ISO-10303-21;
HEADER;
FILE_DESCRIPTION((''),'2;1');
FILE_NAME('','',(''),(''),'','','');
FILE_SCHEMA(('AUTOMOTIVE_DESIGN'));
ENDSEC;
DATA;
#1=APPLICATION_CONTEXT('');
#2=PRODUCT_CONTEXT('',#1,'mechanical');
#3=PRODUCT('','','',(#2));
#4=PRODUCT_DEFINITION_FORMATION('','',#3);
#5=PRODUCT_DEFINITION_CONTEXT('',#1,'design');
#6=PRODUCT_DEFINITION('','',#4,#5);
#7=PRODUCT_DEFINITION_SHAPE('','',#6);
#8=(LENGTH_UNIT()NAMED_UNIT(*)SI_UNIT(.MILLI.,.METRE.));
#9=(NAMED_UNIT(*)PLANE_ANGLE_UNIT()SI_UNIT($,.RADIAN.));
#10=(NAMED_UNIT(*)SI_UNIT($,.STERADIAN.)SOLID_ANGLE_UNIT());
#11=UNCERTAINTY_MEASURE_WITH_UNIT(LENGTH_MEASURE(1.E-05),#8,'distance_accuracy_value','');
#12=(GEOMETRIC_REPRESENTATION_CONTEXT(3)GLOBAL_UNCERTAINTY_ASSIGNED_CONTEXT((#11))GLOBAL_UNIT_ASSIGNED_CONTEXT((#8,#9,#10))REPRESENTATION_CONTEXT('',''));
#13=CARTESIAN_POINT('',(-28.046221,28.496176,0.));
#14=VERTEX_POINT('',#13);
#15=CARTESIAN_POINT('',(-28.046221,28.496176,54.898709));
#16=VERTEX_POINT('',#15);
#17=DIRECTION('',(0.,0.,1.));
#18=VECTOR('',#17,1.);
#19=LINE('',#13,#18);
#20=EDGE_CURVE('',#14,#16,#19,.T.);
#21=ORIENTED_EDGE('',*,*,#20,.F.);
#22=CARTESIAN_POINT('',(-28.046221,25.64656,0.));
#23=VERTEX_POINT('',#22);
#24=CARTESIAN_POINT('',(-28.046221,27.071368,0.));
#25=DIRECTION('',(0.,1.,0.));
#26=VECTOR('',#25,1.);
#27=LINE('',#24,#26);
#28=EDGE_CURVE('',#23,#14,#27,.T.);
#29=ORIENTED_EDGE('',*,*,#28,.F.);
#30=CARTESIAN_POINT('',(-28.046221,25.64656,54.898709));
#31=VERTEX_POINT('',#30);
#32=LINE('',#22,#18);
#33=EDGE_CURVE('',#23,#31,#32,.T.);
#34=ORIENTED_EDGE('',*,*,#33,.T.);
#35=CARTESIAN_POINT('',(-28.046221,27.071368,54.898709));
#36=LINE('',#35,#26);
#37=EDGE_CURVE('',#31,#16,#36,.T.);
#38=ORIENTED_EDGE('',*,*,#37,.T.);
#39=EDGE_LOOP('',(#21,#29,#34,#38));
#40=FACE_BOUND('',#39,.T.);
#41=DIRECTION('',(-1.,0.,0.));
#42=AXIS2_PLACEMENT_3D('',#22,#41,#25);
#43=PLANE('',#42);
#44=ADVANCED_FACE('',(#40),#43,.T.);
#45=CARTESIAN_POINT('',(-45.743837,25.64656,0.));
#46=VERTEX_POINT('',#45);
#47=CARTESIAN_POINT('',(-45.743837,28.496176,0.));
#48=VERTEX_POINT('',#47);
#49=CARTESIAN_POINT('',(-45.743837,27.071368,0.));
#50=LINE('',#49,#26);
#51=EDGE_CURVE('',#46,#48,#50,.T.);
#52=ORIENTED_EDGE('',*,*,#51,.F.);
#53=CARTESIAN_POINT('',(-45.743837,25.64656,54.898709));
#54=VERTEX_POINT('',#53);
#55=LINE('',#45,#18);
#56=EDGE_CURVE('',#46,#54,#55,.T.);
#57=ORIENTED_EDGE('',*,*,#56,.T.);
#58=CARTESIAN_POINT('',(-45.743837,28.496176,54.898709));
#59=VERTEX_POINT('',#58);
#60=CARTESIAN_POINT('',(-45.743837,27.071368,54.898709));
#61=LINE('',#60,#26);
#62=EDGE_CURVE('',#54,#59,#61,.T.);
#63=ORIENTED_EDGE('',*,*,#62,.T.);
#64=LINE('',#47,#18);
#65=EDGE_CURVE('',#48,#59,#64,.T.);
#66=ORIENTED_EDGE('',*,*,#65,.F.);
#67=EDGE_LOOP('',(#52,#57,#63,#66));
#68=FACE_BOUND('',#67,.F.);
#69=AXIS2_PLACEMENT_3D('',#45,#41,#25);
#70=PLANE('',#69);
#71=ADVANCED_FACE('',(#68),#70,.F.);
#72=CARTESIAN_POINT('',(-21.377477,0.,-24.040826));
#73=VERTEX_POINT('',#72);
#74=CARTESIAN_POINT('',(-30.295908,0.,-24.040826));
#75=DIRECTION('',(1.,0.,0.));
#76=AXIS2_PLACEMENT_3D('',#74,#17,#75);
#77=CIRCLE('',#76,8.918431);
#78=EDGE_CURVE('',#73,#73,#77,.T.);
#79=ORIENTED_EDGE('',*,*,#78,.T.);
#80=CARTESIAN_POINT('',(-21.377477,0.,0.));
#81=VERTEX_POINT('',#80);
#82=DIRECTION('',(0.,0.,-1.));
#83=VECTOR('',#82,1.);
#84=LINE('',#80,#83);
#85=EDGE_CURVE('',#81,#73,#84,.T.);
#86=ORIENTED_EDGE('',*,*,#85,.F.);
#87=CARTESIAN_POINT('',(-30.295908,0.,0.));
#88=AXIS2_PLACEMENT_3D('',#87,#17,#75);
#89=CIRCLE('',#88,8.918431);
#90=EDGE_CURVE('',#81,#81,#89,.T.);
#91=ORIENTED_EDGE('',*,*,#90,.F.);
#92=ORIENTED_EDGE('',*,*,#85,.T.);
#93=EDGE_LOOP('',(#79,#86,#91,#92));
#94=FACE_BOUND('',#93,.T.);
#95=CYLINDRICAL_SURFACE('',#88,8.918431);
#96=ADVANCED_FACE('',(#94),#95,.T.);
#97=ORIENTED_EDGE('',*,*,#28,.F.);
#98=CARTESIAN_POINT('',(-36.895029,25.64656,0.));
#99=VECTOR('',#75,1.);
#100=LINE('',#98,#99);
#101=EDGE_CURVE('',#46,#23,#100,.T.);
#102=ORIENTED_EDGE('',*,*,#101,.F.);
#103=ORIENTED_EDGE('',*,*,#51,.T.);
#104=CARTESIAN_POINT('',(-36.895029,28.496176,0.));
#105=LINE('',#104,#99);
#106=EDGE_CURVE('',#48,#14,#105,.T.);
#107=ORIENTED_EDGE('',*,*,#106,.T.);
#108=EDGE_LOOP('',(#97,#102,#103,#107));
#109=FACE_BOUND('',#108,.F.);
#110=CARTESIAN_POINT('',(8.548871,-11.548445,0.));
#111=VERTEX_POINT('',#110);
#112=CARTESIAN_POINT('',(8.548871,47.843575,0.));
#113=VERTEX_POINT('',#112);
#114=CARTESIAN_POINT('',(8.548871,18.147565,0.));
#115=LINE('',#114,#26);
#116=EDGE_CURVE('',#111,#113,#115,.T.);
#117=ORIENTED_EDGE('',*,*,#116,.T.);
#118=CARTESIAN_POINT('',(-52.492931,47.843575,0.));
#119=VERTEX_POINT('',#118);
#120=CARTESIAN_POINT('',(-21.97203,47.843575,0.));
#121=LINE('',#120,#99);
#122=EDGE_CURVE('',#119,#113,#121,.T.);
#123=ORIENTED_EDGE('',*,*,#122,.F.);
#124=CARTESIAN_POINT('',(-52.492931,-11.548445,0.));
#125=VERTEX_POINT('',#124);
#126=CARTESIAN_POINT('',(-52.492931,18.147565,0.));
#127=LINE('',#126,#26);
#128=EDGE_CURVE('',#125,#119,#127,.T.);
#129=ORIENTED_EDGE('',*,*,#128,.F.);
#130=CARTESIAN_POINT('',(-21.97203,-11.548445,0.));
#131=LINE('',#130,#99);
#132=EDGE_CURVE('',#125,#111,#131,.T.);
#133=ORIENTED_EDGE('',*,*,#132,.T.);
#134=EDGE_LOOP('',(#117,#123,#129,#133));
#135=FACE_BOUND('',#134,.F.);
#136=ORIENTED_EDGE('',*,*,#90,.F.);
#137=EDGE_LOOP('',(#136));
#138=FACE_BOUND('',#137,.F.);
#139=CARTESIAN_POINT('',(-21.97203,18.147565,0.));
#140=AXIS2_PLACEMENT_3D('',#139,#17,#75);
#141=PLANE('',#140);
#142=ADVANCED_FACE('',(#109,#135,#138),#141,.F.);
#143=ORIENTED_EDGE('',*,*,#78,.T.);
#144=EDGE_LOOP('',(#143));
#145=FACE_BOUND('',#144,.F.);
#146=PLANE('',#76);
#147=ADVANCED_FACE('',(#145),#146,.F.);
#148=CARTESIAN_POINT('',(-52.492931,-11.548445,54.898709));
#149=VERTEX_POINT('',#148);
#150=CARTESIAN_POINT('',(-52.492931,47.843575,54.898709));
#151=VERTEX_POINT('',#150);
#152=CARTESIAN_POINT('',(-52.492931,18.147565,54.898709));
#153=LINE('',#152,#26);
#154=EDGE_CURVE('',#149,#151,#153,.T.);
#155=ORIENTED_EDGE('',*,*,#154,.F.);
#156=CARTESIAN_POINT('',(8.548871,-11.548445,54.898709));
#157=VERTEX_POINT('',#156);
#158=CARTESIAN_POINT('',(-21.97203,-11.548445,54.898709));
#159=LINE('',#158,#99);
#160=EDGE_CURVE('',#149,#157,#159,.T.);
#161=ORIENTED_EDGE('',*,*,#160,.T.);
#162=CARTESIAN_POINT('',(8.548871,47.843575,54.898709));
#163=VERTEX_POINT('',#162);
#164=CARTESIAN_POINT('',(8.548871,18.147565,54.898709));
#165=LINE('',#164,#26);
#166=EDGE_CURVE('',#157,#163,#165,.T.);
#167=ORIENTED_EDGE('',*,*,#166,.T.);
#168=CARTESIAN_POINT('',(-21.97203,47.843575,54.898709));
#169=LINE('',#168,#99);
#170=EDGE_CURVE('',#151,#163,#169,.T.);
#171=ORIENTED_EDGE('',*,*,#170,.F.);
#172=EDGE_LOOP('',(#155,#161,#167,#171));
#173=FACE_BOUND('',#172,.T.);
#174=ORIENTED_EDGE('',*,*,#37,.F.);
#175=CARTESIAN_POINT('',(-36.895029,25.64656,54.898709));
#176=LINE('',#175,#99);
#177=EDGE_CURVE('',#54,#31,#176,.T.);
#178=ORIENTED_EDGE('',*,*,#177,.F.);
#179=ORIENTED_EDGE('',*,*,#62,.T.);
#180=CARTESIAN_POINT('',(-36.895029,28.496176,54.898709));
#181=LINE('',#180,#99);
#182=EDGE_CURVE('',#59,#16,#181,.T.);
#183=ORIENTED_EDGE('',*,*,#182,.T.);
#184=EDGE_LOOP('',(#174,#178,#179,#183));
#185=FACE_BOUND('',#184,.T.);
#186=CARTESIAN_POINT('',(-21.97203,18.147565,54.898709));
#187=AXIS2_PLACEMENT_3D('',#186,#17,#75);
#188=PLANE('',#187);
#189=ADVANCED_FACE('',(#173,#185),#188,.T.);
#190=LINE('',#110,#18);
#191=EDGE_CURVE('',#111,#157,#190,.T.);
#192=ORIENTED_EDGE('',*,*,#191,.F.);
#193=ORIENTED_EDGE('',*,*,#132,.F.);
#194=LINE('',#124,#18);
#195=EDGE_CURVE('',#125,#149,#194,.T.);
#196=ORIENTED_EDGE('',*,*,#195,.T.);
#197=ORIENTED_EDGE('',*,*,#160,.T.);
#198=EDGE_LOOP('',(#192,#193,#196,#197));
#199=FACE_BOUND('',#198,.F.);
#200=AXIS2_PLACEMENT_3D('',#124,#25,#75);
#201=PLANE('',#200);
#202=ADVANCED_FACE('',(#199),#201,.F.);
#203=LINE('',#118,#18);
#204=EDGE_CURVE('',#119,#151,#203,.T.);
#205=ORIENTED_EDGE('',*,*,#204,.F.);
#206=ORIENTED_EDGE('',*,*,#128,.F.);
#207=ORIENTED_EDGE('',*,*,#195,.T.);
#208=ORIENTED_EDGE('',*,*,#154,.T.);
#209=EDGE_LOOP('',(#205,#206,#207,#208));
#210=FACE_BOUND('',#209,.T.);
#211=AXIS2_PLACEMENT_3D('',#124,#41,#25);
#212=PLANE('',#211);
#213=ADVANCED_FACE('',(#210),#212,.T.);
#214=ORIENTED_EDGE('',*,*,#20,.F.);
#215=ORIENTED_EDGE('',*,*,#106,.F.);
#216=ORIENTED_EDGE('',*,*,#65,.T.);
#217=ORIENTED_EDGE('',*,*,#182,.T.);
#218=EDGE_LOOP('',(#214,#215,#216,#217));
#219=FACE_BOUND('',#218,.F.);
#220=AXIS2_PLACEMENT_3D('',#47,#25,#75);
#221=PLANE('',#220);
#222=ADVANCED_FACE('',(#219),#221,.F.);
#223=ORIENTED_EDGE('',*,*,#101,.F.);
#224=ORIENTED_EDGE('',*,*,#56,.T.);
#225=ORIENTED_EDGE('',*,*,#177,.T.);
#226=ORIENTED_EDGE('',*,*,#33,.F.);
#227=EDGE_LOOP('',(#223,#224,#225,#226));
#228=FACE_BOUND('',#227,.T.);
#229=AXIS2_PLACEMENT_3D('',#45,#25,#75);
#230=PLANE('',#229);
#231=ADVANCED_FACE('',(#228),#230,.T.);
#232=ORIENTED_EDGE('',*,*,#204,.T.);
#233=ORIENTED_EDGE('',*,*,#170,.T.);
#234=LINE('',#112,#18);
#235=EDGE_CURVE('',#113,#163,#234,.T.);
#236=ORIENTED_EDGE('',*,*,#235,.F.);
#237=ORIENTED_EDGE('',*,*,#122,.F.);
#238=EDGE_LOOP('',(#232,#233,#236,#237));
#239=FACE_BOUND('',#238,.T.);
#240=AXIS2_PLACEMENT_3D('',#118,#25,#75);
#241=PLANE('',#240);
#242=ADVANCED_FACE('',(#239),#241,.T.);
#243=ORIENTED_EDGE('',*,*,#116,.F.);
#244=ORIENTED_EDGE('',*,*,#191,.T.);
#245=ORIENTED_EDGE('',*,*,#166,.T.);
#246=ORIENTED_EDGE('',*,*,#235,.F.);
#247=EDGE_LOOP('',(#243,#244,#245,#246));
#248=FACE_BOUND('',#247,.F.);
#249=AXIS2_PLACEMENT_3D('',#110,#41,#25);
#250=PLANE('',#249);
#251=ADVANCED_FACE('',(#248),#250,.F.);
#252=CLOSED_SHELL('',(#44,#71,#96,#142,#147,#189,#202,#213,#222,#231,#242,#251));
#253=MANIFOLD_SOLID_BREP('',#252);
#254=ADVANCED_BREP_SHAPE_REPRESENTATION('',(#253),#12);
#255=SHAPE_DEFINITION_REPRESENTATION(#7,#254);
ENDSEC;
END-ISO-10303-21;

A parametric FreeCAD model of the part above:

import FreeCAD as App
import Part
import Sketcher
Q = App.Units.Quantity

doc = App.newDocument("Part")
body = doc.addObject("PartDesign::Body", "Body")

sketch1 = body.newObject("Sketcher::SketchObject", "Sketch")
sketch1.AttachmentSupport = (doc.getObject("XY_Plane"), [""])
sketch1.MapMode = "FlatFace"
sketch1.addGeometry([
    Part.LineSegment(App.Vector(-52.5, 47.8, 0), App.Vector(-52.5, -11.5, 0)),
    Part.LineSegment(App.Vector(-52.5, -11.5, 0), App.Vector(8.5, -11.5, 0)),
    Part.LineSegment(App.Vector(8.5, -11.5, 0), App.Vector(8.5, 47.8, 0)),
    Part.LineSegment(App.Vector(8.5, 47.8, 0), App.Vector(-52.5, 47.8, 0)),
    Part.LineSegment(App.Vector(-28, 25.6, 0), App.Vector(-45.7, 25.6, 0)),
    Part.LineSegment(App.Vector(-45.7, 25.6, 0), App.Vector(-45.7, 28.5, 0)),
    Part.LineSegment(App.Vector(-45.7, 28.5, 0), App.Vector(-28, 28.5, 0)),
    Part.LineSegment(App.Vector(-28, 28.5, 0), App.Vector(-28, 25.6, 0)),
], False)
sketch1.addConstraint([
    Sketcher.Constraint("Coincident", 0, 2, 1, 1),
    Sketcher.Constraint("Coincident", 1, 2, 2, 1),
    Sketcher.Constraint("Coincident", 2, 2, 3, 1),
    Sketcher.Constraint("Coincident", 3, 2, 0, 1),
    Sketcher.Constraint("Coincident", 4, 2, 5, 1),
    Sketcher.Constraint("Coincident", 5, 2, 6, 1),
    Sketcher.Constraint("Coincident", 6, 2, 7, 1),
    Sketcher.Constraint("Coincident", 7, 2, 4, 1),
    Sketcher.Constraint("Vertical", 0),
    Sketcher.Constraint("Horizontal", 1),
    Sketcher.Constraint("Vertical", 2),
    Sketcher.Constraint("Horizontal", 3),
    Sketcher.Constraint("Horizontal", 4),
    Sketcher.Constraint("Vertical", 5),
    Sketcher.Constraint("Horizontal", 6),
    Sketcher.Constraint("Vertical", 7),
    Sketcher.Constraint("DistanceX", 1, 1, 1, 2, Q("61.041802 mm")),
    Sketcher.Constraint("DistanceY", 0, 2, 0, 1, Q("59.39202 mm")),
    Sketcher.Constraint("DistanceY", 5, 2, 3, 2, Q("19.347399 mm")),
    Sketcher.Constraint("DistanceX", 4, 2, 4, 1, Q("17.697617 mm")),
    Sketcher.Constraint("DistanceY", 5, 1, 5, 2, Q("2.849616 mm")),
    Sketcher.Constraint("DistanceX", 0, 2, -1, 1, Q("52.492931 mm")),
    Sketcher.Constraint("DistanceY", -1, 1, 4, 2, Q("25.64656 mm")),
    Sketcher.Constraint("DistanceX", 6, 2, -1, 1, Q("28.046221 mm")),
])
pad1 = body.newObject("PartDesign::Pad", "Pad")
pad1.Profile = sketch1
pad1.Length = 54.898709

sketch2 = body.newObject("Sketcher::SketchObject", "Sketch001")
sketch2.AttachmentSupport = (doc.getObject("XY_Plane"), [""])
sketch2.MapMode = "FlatFace"
sketch2.addGeometry(Part.Circle(App.Vector(-30, 0, 0), App.Vector(0, 0, 1), 9), False)
sketch2.addConstraint([
    Sketcher.Constraint("PointOnObject", 0, 3, -1),
    Sketcher.Constraint("Diameter", 0, Q("17.836862 mm")),
    Sketcher.Constraint("DistanceX", 0, 3, -1, 1, Q("30.295908 mm")),
])
pad2 = body.newObject("PartDesign::Pad", "Pad001")
pad2.Profile = sketch2
pad2.Length = 24.040826
pad2.Reversed = True

doc.recompute()
